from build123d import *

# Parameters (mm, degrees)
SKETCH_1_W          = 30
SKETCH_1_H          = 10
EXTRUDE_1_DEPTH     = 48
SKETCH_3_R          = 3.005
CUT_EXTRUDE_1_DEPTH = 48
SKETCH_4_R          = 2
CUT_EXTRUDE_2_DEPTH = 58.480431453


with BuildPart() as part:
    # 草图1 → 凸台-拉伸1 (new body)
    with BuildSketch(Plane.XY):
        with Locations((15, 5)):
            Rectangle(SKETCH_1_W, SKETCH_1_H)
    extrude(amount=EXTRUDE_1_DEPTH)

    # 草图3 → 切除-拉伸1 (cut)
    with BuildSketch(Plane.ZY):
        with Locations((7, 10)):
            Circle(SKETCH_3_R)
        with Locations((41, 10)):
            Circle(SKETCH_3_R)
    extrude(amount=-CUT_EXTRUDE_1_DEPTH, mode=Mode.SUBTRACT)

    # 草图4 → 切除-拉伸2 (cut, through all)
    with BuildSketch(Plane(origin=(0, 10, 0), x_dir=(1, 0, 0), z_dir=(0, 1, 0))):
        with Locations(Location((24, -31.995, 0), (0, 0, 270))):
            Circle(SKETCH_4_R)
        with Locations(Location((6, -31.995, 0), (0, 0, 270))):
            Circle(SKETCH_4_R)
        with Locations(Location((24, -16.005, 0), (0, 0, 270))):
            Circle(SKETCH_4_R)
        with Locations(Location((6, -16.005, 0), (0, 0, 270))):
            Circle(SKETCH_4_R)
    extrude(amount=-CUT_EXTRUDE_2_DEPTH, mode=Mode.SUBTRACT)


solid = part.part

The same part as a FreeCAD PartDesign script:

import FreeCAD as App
import Part
import Sketcher

V = App.Vector
Q = App.Units.Quantity

doc = App.newDocument("Part")
body = doc.addObject("PartDesign::Body", "Body")

# Sketch on XY plane
sketch1 = body.newObject("Sketcher::SketchObject", "Sketch")
sketch1.AttachmentSupport = (doc.getObject("XY_Plane"), [""])
sketch1.MapMode = "FlatFace"
sketch1.addGeometry([
    Part.LineSegment(V(0, 10, 0), V(0, 0, 0)),
    Part.LineSegment(V(0, 0, 0), V(30, 0, 0)),
    Part.LineSegment(V(30, 0, 0), V(30, 10, 0)),
    Part.LineSegment(V(30, 10, 0), V(0, 10, 0)),
], False)
sketch1.addConstraint([
    Sketcher.Constraint("Coincident", 0, 2, 1, 1),
    Sketcher.Constraint("Coincident", 1, 2, 2, 1),
    Sketcher.Constraint("Coincident", 2, 2, 3, 1),
    Sketcher.Constraint("Coincident", 3, 2, 0, 1),
    Sketcher.Constraint("Vertical", 0),
    Sketcher.Constraint("Horizontal", 1),
    Sketcher.Constraint("Vertical", 2),
    Sketcher.Constraint("Horizontal", 3),
    Sketcher.Constraint("Coincident", 0, 2, -1, 1),
    Sketcher.Constraint("DistanceX", 1, 1, 1, 2, Q("30 mm")),
    Sketcher.Constraint("DistanceY", 0, 2, 0, 1, Q("10 mm")),
])
pad1 = body.newObject("PartDesign::Pad", "Pad")
pad1.Profile = sketch1
pad1.Length = 48

# Sketch on YZ plane
sketch2 = body.newObject("Sketcher::SketchObject", "Sketch001")
sketch2.AttachmentSupport = (doc.getObject("YZ_Plane"), [""])
sketch2.MapMode = "FlatFace"
sketch2.addGeometry([
    Part.Circle(V(10, 7, 0), V(0, 0, 1), 3.005),
    Part.Circle(V(10, 41, 0), V(0, 0, 1), 3.005),
], False)
sketch2.addConstraint([
    Sketcher.Constraint("Equal", 0, 1),
    Sketcher.Constraint("Vertical", 0, 3, 1, 3),
    Sketcher.Constraint("Diameter", 0, Q("6.01 mm")),
    Sketcher.Constraint("DistanceX", -1, 1, 0, 3, Q("10 mm")),
    Sketcher.Constraint("DistanceY", -1, 1, 0, 3, Q("7 mm")),
    Sketcher.Constraint("DistanceY", -1, 1, 1, 3, Q("41 mm")),
])
pocket1 = body.newObject("PartDesign::Pocket", "Pocket")
pocket1.Profile = sketch2
pocket1.Length = 48
pocket1.Reversed = True

# Sketch on XZ plane
sketch3 = body.newObject("Sketcher::SketchObject", "Sketch002")
sketch3.AttachmentSupport = (doc.getObject("XZ_Plane"), [""])
sketch3.MapMode = "FlatFace"
sketch3.AttachmentOffset = App.Placement(V(0, 0, -10), App.Rotation())
sketch3.addGeometry([
    Part.Circle(V(24, 31.995, 0), V(0, 0, 1), 2),
    Part.Circle(V(6, 31.995, 0), V(0, 0, 1), 2),
    Part.Circle(V(24, 16.005, 0), V(0, 0, 1), 2),
    Part.Circle(V(6, 16.005, 0), V(0, 0, 1), 2),
], False)
sketch3.addConstraint([
    Sketcher.Constraint("Equal", 0, 1),
    Sketcher.Constraint("Equal", 1, 2),
    Sketcher.Constraint("Equal", 2, 3),
    Sketcher.Constraint("Horizontal", 0, 3, 1, 3),
    Sketcher.Constraint("Horizontal", 2, 3, 3, 3),
    Sketcher.Constraint("Vertical", 0, 3, 2, 3),
    Sketcher.Constraint("Vertical", 1, 3, 3, 3),
    Sketcher.Constraint("Diameter", 0, Q("4 mm")),
    Sketcher.Constraint("DistanceX", -1, 1, 0, 3, Q("24 mm")),
    Sketcher.Constraint("DistanceX", -1, 1, 1, 3, Q("6 mm")),
    Sketcher.Constraint("DistanceY", 2, 3, 0, 3, Q("15.99 mm")),
    Sketcher.Constraint("DistanceY", -1, 1, 0, 3, Q("31.995 mm")),
])
pocket2 = body.newObject("PartDesign::Pocket", "Pocket001")
pocket2.Profile = sketch3
pocket2.Type = "ThroughAll"
pocket2.Reversed = True

doc.recompute()
